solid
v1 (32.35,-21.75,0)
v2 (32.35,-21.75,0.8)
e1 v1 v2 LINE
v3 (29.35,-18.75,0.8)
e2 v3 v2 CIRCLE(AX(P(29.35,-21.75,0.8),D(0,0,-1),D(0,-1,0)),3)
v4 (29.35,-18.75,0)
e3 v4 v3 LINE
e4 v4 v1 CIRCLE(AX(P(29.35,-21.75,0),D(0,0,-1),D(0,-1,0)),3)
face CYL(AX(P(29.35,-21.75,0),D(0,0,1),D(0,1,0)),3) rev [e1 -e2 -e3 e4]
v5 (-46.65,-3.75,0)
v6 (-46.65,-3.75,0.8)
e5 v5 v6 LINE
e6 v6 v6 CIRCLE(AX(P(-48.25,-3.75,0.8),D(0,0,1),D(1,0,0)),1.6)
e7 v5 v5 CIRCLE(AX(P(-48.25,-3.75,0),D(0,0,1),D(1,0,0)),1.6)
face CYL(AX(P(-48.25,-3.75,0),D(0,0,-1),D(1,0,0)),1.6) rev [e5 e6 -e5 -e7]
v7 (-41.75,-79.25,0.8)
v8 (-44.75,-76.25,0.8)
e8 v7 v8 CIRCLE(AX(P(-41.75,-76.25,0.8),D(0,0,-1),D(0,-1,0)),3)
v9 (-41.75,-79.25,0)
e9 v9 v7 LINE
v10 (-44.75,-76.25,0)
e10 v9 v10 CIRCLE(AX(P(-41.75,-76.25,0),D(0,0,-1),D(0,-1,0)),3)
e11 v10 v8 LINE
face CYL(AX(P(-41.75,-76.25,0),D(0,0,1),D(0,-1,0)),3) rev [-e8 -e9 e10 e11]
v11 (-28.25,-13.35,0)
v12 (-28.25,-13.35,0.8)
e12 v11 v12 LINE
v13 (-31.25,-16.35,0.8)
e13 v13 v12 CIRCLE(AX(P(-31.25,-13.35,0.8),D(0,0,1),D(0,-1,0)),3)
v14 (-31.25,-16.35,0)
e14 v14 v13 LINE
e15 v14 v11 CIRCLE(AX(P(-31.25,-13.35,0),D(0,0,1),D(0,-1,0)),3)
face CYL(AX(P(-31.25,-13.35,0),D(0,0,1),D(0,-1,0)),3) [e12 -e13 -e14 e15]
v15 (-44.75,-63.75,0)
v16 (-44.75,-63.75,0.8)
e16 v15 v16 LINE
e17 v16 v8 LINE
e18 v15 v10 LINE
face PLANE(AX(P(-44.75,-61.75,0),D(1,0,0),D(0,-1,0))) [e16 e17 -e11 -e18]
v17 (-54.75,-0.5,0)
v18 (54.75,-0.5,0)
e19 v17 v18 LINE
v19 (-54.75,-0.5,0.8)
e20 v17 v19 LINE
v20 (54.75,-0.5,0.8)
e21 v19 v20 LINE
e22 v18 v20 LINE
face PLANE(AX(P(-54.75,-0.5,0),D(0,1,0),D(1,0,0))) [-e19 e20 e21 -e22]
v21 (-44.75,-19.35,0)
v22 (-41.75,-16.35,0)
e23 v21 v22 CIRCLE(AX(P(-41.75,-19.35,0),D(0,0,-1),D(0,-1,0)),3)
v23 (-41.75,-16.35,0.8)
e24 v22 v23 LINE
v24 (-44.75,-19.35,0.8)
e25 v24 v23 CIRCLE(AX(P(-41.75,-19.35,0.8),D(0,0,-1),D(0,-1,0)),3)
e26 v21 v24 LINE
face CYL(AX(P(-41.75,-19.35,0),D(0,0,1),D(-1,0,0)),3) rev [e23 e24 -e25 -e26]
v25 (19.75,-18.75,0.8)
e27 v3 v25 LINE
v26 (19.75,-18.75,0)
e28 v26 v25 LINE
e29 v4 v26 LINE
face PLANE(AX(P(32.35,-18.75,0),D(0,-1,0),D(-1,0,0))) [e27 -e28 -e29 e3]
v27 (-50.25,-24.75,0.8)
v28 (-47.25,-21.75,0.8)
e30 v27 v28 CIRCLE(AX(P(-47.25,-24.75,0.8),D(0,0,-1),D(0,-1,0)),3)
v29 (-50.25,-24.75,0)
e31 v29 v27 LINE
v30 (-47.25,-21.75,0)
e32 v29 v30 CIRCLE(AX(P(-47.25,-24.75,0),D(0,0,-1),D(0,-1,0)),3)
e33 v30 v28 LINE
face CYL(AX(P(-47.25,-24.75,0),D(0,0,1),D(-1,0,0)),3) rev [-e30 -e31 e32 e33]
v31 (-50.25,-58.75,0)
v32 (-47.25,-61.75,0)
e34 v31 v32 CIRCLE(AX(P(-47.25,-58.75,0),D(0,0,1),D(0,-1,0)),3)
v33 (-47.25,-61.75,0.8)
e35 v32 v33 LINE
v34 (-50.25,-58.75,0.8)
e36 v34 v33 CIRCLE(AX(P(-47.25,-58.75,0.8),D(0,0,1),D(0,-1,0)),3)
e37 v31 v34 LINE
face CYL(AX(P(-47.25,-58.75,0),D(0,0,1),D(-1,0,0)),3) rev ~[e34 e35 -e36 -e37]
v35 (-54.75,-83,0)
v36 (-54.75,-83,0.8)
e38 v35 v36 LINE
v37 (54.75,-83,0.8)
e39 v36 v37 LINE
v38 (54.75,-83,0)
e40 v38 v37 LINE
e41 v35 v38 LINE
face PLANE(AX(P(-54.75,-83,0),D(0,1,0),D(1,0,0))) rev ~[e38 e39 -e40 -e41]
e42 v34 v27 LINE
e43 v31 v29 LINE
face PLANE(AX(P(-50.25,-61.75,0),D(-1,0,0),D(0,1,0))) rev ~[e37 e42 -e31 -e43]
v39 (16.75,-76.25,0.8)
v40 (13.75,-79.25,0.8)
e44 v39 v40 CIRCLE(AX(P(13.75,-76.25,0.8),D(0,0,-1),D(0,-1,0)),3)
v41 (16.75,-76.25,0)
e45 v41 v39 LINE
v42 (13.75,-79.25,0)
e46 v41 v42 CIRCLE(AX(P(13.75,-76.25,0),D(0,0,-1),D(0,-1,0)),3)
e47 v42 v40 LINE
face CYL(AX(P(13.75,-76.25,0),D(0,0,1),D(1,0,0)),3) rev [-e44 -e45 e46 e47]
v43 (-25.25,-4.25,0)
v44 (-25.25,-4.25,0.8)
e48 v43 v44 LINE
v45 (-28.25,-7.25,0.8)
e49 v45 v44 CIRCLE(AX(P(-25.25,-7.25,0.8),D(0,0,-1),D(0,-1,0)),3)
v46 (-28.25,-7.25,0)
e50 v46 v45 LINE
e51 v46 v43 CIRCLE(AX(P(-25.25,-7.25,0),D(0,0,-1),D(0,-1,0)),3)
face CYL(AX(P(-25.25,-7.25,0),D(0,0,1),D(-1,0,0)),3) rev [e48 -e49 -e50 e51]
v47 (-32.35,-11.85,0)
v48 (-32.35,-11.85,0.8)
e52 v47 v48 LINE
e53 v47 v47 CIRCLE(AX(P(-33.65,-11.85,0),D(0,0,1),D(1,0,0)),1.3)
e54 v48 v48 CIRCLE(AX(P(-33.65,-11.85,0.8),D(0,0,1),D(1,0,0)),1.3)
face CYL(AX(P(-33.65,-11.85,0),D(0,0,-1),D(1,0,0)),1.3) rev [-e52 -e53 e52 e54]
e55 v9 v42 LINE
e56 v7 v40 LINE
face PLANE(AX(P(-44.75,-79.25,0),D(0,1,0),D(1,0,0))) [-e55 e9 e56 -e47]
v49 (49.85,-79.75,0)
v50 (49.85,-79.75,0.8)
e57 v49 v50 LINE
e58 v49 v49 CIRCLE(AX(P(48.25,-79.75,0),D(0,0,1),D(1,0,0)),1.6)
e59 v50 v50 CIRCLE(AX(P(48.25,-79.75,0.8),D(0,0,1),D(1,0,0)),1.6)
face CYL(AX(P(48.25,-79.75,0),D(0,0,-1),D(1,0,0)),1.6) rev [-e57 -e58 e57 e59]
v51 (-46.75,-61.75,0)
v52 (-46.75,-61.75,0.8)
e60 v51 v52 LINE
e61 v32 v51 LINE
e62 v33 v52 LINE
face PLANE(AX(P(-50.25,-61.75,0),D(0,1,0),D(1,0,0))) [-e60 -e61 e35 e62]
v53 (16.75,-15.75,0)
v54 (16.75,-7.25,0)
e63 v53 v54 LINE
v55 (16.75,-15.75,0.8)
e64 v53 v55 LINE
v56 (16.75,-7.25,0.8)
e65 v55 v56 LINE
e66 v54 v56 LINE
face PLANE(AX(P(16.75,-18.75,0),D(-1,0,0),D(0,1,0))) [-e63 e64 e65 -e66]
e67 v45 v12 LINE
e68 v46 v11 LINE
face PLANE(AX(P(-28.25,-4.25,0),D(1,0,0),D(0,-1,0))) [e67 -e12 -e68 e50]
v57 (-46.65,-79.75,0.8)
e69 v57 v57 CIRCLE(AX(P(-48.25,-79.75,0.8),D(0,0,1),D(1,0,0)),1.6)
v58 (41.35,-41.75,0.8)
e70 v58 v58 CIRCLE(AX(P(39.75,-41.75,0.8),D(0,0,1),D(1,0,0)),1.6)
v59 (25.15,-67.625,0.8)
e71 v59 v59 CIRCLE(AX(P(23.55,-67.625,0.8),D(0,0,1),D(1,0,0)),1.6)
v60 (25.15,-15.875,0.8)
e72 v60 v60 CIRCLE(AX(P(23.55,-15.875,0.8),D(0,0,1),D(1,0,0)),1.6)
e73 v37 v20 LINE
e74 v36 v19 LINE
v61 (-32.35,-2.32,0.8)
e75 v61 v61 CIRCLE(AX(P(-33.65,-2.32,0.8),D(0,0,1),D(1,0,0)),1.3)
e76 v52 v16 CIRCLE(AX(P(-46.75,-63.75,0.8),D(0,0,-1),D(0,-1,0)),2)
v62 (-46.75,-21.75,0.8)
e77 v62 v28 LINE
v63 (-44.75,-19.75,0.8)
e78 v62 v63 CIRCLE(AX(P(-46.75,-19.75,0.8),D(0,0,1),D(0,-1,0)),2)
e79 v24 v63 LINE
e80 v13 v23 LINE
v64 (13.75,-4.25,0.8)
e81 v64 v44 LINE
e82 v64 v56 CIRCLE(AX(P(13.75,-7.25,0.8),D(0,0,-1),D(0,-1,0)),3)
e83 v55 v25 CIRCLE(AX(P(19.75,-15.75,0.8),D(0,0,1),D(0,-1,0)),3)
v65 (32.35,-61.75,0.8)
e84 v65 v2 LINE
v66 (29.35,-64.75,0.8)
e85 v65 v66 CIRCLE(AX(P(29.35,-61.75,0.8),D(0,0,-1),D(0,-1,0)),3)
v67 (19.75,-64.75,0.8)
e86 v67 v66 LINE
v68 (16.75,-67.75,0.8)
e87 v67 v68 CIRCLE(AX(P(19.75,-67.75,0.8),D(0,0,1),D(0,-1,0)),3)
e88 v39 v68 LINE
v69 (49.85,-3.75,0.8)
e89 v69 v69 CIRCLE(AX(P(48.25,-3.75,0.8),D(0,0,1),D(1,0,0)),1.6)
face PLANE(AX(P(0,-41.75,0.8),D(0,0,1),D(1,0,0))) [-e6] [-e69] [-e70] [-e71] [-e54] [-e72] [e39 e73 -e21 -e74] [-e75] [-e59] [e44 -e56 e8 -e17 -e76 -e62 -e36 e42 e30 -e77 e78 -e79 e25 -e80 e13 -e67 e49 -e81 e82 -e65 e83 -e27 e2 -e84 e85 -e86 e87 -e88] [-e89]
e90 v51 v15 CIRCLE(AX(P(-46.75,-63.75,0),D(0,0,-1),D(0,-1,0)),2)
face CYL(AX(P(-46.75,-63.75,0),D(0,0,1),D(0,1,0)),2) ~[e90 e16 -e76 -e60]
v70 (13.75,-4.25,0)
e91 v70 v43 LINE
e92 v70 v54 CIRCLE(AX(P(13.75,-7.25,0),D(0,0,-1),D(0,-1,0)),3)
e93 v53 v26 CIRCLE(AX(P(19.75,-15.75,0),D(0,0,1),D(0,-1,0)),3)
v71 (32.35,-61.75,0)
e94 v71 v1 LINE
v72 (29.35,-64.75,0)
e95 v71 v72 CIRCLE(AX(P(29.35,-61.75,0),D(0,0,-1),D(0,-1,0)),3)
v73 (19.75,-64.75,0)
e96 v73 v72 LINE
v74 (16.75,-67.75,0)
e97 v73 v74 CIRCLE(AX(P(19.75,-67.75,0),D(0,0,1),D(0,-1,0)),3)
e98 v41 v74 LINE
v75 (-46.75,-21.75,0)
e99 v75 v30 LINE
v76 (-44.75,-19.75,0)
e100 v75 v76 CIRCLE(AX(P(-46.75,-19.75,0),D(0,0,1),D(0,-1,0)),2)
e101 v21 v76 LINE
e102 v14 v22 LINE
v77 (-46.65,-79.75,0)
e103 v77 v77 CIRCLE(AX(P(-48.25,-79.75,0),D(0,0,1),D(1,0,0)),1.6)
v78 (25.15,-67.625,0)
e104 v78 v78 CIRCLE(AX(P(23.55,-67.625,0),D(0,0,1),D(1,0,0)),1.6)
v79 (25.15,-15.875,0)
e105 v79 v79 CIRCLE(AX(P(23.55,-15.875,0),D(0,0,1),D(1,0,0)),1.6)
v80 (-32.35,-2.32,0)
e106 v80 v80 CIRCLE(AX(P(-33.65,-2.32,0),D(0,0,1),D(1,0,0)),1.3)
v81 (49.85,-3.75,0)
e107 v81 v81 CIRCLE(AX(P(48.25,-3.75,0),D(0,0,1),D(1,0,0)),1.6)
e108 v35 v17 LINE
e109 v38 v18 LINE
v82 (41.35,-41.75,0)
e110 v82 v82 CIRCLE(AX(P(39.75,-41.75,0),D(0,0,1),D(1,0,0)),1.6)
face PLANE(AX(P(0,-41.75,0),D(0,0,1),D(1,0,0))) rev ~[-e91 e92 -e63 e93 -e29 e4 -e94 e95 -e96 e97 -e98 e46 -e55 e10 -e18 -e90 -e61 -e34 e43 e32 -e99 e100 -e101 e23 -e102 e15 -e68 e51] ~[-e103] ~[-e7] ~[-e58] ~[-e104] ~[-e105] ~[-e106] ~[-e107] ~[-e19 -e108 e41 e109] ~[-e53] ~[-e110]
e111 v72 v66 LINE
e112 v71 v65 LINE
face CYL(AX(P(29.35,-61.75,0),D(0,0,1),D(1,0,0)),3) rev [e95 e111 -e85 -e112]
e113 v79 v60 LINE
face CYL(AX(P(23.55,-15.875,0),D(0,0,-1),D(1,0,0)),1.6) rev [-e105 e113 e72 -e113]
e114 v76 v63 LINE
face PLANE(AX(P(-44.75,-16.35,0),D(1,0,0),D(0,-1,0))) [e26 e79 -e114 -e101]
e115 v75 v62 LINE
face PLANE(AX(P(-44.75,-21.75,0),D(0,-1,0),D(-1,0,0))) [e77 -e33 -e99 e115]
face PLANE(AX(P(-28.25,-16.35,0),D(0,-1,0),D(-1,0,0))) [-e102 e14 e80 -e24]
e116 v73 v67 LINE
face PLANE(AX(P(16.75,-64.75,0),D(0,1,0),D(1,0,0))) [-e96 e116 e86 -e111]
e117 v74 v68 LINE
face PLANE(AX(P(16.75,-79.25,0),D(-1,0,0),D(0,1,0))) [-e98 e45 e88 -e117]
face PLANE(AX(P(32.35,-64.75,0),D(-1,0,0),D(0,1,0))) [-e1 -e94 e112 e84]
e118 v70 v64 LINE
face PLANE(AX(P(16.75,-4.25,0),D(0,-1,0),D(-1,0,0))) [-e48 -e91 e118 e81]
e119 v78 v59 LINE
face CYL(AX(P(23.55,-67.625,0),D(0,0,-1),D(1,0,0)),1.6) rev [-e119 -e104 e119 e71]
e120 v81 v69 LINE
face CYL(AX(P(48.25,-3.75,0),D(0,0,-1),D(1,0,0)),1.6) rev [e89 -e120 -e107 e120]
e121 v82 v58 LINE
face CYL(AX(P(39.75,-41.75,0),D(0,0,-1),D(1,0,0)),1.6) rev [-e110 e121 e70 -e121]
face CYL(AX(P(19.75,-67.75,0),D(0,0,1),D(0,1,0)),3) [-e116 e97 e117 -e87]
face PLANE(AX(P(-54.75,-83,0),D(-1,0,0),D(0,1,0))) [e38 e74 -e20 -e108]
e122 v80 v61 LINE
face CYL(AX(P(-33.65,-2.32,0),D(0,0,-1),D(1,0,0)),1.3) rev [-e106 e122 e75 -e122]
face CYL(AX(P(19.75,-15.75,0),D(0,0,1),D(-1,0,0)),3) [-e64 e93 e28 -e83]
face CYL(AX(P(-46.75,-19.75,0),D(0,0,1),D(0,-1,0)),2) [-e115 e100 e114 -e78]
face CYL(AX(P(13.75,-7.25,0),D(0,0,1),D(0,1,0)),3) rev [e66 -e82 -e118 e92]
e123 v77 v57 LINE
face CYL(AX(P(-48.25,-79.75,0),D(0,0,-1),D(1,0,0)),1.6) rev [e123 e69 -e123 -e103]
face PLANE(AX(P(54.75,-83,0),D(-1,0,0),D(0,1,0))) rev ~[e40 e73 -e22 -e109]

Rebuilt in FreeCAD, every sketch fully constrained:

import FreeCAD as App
import Part
import Sketcher


def edges_at(feature, points):
    """Names of the edges that pass closest to the given points."""
    edges = feature.Shape.Edges
    near = lambda p: min(range(len(edges)), key=lambda i: edges[i].distToShape(Part.Vertex(*p))[0])
    return sorted({f"Edge{near(p) + 1}" for p in points})

doc = App.newDocument("Part")
body = doc.addObject("PartDesign::Body", "Body")

# Sketch on XY plane
sketch1 = body.newObject("Sketcher::SketchObject", "Sketch")
sketch1.AttachmentSupport = (doc.getObject("XY_Plane"), [""])
sketch1.MapMode = "FlatFace"
sketch1.addGeometry([
    Part.LineSegment(App.Vector(-54.8, -0.5, 0), App.Vector(-54.8, -83, 0)),  # 0
    Part.LineSegment(App.Vector(-54.8, -83, 0), App.Vector(54.8, -83, 0)),  # 1
    Part.LineSegment(App.Vector(54.8, -83, 0), App.Vector(54.8, -0.5, 0)),  # 2
    Part.LineSegment(App.Vector(54.8, -0.5, 0), App.Vector(-54.8, -0.5, 0)),  # 3
    Part.Circle(App.Vector(-48.2, -79.8, 0), App.Vector(0, 0, 1), 1.6),  # 4
    Part.LineSegment(App.Vector(-50.2, -61.8, 0), App.Vector(-50.2, -21.8, 0)),  # 5
    Part.LineSegment(App.Vector(-50.2, -21.8, 0), App.Vector(-44.8, -21.8, 0)),  # 6
    Part.LineSegment(App.Vector(-44.8, -21.8, 0), App.Vector(-44.8, -16.4, 0)),  # 7
    Part.LineSegment(App.Vector(-44.8, -16.4, 0), App.Vector(-28.2, -16.4, 0)),  # 8
    Part.LineSegment(App.Vector(-28.2, -16.4, 0), App.Vector(-28.2, -4.2, 0)),  # 9
    Part.LineSegment(App.Vector(-28.2, -4.2, 0), App.Vector(16.8, -4.2, 0)),  # 10
    Part.LineSegment(App.Vector(16.8, -4.2, 0), App.Vector(16.8, -18.8, 0)),  # 11
    Part.LineSegment(App.Vector(16.8, -18.8, 0), App.Vector(32.4, -18.8, 0)),  # 12
    Part.LineSegment(App.Vector(32.4, -18.8, 0), App.Vector(32.4, -64.8, 0)),  # 13
    Part.LineSegment(App.Vector(32.4, -64.8, 0), App.Vector(16.8, -64.8, 0)),  # 14
    Part.LineSegment(App.Vector(16.8, -64.8, 0), App.Vector(16.8, -79.2, 0)),  # 15
    Part.LineSegment(App.Vector(16.8, -79.2, 0), App.Vector(-44.8, -79.2, 0)),  # 16
    Part.LineSegment(App.Vector(-44.8, -79.2, 0), App.Vector(-44.8, -61.8, 0)),  # 17
    Part.LineSegment(App.Vector(-44.8, -61.8, 0), App.Vector(-50.2, -61.8, 0)),  # 18
    Part.Circle(App.Vector(23.6, -67.6, 0), App.Vector(0, 0, 1), 1.6),  # 19
    Part.Circle(App.Vector(48.2, -79.8, 0), App.Vector(0, 0, 1), 1.6),  # 20
    Part.Circle(App.Vector(39.8, -41.8, 0), App.Vector(0, 0, 1), 1.6),  # 21
    Part.Circle(App.Vector(-33.6, -11.8, 0), App.Vector(0, 0, 1), 1.3),  # 22
    Part.Circle(App.Vector(-48.2, -3.8, 0), App.Vector(0, 0, 1), 1.6),  # 23
    Part.Circle(App.Vector(-33.6, -2.3, 0), App.Vector(0, 0, 1), 1.3),  # 24
    Part.Circle(App.Vector(23.6, -15.9, 0), App.Vector(0, 0, 1), 1.6),  # 25
    Part.Circle(App.Vector(48.2, -3.8, 0), App.Vector(0, 0, 1), 1.6),  # 26
], False)
sketch1.addConstraint([
    Sketcher.Constraint("Coincident", 0, 2, 1, 1),
    Sketcher.Constraint("Coincident", 1, 2, 2, 1),
    Sketcher.Constraint("Coincident", 2, 2, 3, 1),
    Sketcher.Constraint("Coincident", 3, 2, 0, 1),
    Sketcher.Constraint("Coincident", 5, 2, 6, 1),
    Sketcher.Constraint("Coincident", 6, 2, 7, 1),
    Sketcher.Constraint("Coincident", 7, 2, 8, 1),
    Sketcher.Constraint("Coincident", 8, 2, 9, 1),
    Sketcher.Constraint("Coincident", 9, 2, 10, 1),
    Sketcher.Constraint("Coincident", 10, 2, 11, 1),
    Sketcher.Constraint("Coincident", 11, 2, 12, 1),
    Sketcher.Constraint("Coincident", 12, 2, 13, 1),
    Sketcher.Constraint("Coincident", 13, 2, 14, 1),
    Sketcher.Constraint("Coincident", 14, 2, 15, 1),
    Sketcher.Constraint("Coincident", 15, 2, 16, 1),
    Sketcher.Constraint("Coincident", 16, 2, 17, 1),
    Sketcher.Constraint("Coincident", 17, 2, 18, 1),
    Sketcher.Constraint("Coincident", 18, 2, 5, 1),
    Sketcher.Constraint("Vertical", 0),
    Sketcher.Constraint("Horizontal", 1),
    Sketcher.Constraint("Vertical", 2),
    Sketcher.Constraint("Horizontal", 3),
    Sketcher.Constraint("Vertical", 5),
    Sketcher.Constraint("Horizontal", 6),
    Sketcher.Constraint("Vertical", 7),
    Sketcher.Constraint("Horizontal", 8),
    Sketcher.Constraint("Vertical", 9),
    Sketcher.Constraint("Horizontal", 10),
    Sketcher.Constraint("Vertical", 11),
    Sketcher.Constraint("Horizontal", 12),
    Sketcher.Constraint("Vertical", 13),
    Sketcher.Constraint("Horizontal", 14),
    Sketcher.Constraint("Vertical", 15),
    Sketcher.Constraint("Horizontal", 16),
    Sketcher.Constraint("Vertical", 17),
    Sketcher.Constraint("Horizontal", 18),
    Sketcher.Constraint("Equal", 4, 19),
    Sketcher.Constraint("Equal", 19, 20),
    Sketcher.Constraint("Equal", 20, 21),
    Sketcher.Constraint("Equal", 21, 23),
    Sketcher.Constraint("Equal", 22, 24),
    Sketcher.Constraint("Equal", 23, 25),
    Sketcher.Constraint("Equal", 25, 26),
    Sketcher.Constraint("Symmetric", 4, 3, 20, 3, -2),
    Sketcher.Constraint("Symmetric", 23, 3, 26, 3, -2),
    Sketcher.Constraint("Vertical", 4, 3, 23, 3),
    Sketcher.Constraint("Vertical", 22, 3, 24, 3),
    Sketcher.Constraint("Vertical", 19, 3, 25, 3),
    Sketcher.Constraint("Vertical", 11, 2, 14, 2),
    Sketcher.Constraint("Vertical", 7, 2, 16, 2),
    Sketcher.Constraint("Equal", 11, 15),
    Sketcher.Constraint("Diameter", 4, 3.2),
    Sketcher.Constraint("Diameter", 22, 2.6),
    Sketcher.Constraint("DistanceX", 10, 1, 10, 2, 45.0),
    Sketcher.Constraint("DistanceY", 5, 1, 5, 2, 40.0),
    Sketcher.Constraint("DistanceY", 13, 2, 13, 1, 46.0),
    Sketcher.Constraint("DistanceX", 1, 1, 1, 2, 109.5),
    Sketcher.Constraint("DistanceX", 6, 1, 6, 2, 5.5),
    Sketcher.Constraint("DistanceX", 8, 1, 8, 2, 16.5),
    Sketcher.Constraint("DistanceX", 12, 1, 12, 2, 15.6),
    Sketcher.Constraint("DistanceY", 0, 2, 0, 1, 82.5),
    Sketcher.Constraint("DistanceY", 7, 1, 7, 2, 5.4),
    Sketcher.Constraint("DistanceY", 9, 1, 9, 2, 12.1),
    Sketcher.Constraint("DistanceY", 11, 2, 11, 1, 14.5),
    Sketcher.Constraint("DistanceY", 0, 2, -1, 1, 83.0),
    Sketcher.Constraint("DistanceY", 20, 3, 21, 3, 38.0),
    Sketcher.Constraint("DistanceX", 4, 3, 21, 3, 88.0),
    Sketcher.Constraint("DistanceY", 4, 3, 23, 3, 76.0),
    Sketcher.Constraint("DistanceX", 21, 3, 1, 2, 15.0),
    Sketcher.Constraint("DistanceX", 5, 2, 23, 3, 2.0),
    Sketcher.Constraint("DistanceY", 5, 2, 23, 3, 18.0),
    Sketcher.Constraint("DistanceX", 4, 3, 19, 3, 71.8),
    Sketcher.Constraint("DistanceX", 19, 3, 20, 3, 24.7),
    Sketcher.Constraint("DistanceX", 4, 3, 22, 3, 14.6),
    Sketcher.Constraint("DistanceY", 4, 3, 22, 3, 67.9),
    Sketcher.Constraint("DistanceY", 4, 3, -1, 1, 79.75),
    Sketcher.Constraint("DistanceY", 24, 3, -1, 1, 2.32),
    Sketcher.Constraint("DistanceY", 19, 3, 25, 3, 51.75),
    Sketcher.Constraint("DistanceY", 19, 3, -1, 1, 67.625),
])
pad1 = body.newObject("PartDesign::Pad", "Pad")
pad1.Profile = sketch1
pad1.Length = 0.8
doc.recompute()

fillet = body.newObject("PartDesign::Fillet", "Fillet")
fillet.Base = (pad1, edges_at(pad1, [
    (32.35, -64.75, 0.4),
    (32.35, -18.75, 0.4),
    (16.75, -18.75, 0.4),
    (16.75, -4.25, 0.4),
    (-28.25, -4.25, 0.4),
    (-28.25, -16.35, 0.4),
    (-44.75, -16.35, 0.4),
    (-50.25, -21.75, 0.4),
    (-50.25, -61.75, 0.4),
    (-44.75, -79.25, 0.4),
    (16.75, -79.25, 0.4),
    (16.75, -64.75, 0.4),
]))
fillet.Radius = 3
doc.recompute()

fillet2 = body.newObject("PartDesign::Fillet", "Fillet001")
fillet2.Base = (fillet, edges_at(fillet, [(-44.75, -21.75, 0.4), (-44.75, -61.75, 0.4)]))
fillet2.Radius = 2

doc.recompute()
